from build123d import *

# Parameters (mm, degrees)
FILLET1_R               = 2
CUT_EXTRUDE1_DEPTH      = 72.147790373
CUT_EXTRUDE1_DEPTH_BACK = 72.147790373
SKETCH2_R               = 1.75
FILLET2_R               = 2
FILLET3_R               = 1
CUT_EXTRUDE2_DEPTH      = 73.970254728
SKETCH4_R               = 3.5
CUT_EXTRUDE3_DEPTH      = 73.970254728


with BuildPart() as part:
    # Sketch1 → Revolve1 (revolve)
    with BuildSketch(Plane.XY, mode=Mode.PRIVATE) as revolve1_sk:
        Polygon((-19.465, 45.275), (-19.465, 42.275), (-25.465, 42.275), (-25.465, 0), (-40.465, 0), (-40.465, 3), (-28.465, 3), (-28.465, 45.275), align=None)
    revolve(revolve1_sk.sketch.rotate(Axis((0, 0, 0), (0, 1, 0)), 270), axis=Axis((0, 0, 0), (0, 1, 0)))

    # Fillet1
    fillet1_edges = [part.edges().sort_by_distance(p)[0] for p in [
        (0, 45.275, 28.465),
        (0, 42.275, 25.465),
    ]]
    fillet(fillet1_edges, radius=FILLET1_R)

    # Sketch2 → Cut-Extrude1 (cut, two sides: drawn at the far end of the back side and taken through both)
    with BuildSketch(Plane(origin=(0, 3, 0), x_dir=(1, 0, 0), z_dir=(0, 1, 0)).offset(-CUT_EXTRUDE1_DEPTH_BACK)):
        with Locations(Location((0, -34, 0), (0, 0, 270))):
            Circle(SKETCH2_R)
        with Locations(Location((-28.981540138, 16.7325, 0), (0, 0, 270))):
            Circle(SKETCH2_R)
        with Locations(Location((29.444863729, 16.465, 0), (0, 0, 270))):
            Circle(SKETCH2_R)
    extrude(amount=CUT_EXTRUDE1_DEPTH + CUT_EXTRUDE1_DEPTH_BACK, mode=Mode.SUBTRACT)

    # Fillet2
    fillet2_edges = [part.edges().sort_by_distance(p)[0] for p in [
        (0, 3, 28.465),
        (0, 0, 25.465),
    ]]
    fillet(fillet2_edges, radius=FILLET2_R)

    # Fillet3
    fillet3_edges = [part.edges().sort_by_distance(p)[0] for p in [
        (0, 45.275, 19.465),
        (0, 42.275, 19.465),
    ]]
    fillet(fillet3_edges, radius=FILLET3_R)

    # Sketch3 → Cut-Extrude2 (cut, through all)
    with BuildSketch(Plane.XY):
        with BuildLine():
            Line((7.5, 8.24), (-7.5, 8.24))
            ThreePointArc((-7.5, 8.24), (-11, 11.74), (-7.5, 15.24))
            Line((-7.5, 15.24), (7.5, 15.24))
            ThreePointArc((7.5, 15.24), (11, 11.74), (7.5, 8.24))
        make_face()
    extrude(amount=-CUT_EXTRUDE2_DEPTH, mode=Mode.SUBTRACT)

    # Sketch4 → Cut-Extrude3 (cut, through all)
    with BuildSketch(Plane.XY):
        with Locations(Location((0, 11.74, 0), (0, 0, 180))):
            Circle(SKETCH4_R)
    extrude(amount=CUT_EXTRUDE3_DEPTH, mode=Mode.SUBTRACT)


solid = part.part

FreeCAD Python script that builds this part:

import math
import FreeCAD as App
import Part
import Sketcher
from FreeCAD import Vector


def edges_at(feature, points):
    """Names of the edges that pass closest to the given points."""
    edges = feature.Shape.Edges
    near = lambda p: min(range(len(edges)), key=lambda i: edges[i].distToShape(Part.Vertex(*p))[0])
    return sorted({f"Edge{near(p) + 1}" for p in points})


def add_polygon(sketch, points):
    """Adds a closed chain of lines whose ends are joined by coincident constraints."""
    first, n = sketch.GeometryCount, len(points)
    for a, b in zip(points, points[1:] + points[:1]):
        sketch.addGeometry(Part.LineSegment(App.Vector(*a, 0), App.Vector(*b, 0)), False)
    for i in range(n):
        sketch.addConstraint(Sketcher.Constraint("Coincident", first + i, 2, first + (i + 1) % n, 1))

doc = App.newDocument("Part")
body = doc.addObject("PartDesign::Body", "Body")

sketch1 = body.newObject("Sketcher::SketchObject", "Sketch")
sketch1.AttachmentSupport = (doc.getObject("XY_Plane"), [""])
sketch1.MapMode = "FlatFace"
add_polygon(sketch1, [(-19.5, 42.3), (-19.5, 45.3), (-28.5, 45.3), (-28.5, 3), (-40.5, 3), (-40.5, 0), (-25.5, 0), (-25.5, 42.3)])
sketch1.addConstraint(Sketcher.Constraint("Vertical", 0))
sketch1.addConstraint(Sketcher.Constraint("Horizontal", 1))
sketch1.addConstraint(Sketcher.Constraint("Vertical", 2))
sketch1.addConstraint(Sketcher.Constraint("Horizontal", 3))
sketch1.addConstraint(Sketcher.Constraint("Vertical", 4))
sketch1.addConstraint(Sketcher.Constraint("Horizontal", 5))
sketch1.addConstraint(Sketcher.Constraint("Vertical", 6))
sketch1.addConstraint(Sketcher.Constraint("Horizontal", 7))
sketch1.addConstraint(Sketcher.Constraint("PointOnObject", 4, 2, -1))
sketch1.addConstraint(Sketcher.Constraint("Equal", 0, 4))
sketch1.addConstraint(Sketcher.Constraint("DistanceX", 1, 2, 1, 1, 9.0))
sketch1.addConstraint(Sketcher.Constraint("DistanceX", 3, 2, 3, 1, 12.0))
sketch1.addConstraint(Sketcher.Constraint("DistanceX", 5, 1, 5, 2, 15.0))
sketch1.addConstraint(Sketcher.Constraint("DistanceY", 0, 1, 0, 2, 3.0))
sketch1.addConstraint(Sketcher.Constraint("DistanceY", 2, 2, 2, 1, 42.275))
sketch1.addConstraint(Sketcher.Constraint("DistanceX", 0, 2, -1, 1, 19.465))
revolution = body.newObject("PartDesign::Revolution", "Revolution")
revolution.Profile = sketch1
revolution.ReferenceAxis = (sketch1, ["V_Axis"])
revolution.Angle = 360
doc.recompute()

fillet = body.newObject("PartDesign::Fillet", "Fillet")
fillet.Base = (revolution, edges_at(revolution, [(0, 45.275, 28.465), (0, 42.275, 25.465)]))
fillet.Radius = 2

sketch2 = body.newObject("Sketcher::SketchObject", "Sketch001")
sketch2.AttachmentSupport = (doc.getObject("XZ_Plane"), [""])
sketch2.MapMode = "FlatFace"
sketch2.AttachmentOffset = App.Placement(Vector(0, 0, -3), App.Rotation())
sketch2.addGeometry(Part.Circle(Vector(0, 34, 0), Vector(0, 0, 1), 1.8), False)
sketch2.addGeometry(Part.Circle(Vector(-29, -16.7, 0), Vector(0, 0, 1), 1.8), False)
sketch2.addGeometry(Part.Circle(Vector(29.4, -16.5, 0), Vector(0, 0, 1), 1.8), False)
sketch2.addConstraint(Sketcher.Constraint("Equal", 0, 1))
sketch2.addConstraint(Sketcher.Constraint("Equal", 1, 2))
sketch2.addConstraint(Sketcher.Constraint("PointOnObject", 0, 3, -2))
sketch2.addConstraint(Sketcher.Constraint("Diameter", 0, 3.5))
sketch2.addConstraint(Sketcher.Constraint("DistanceY", -1, 1, 0, 3, 34.0))
sketch2.addConstraint(Sketcher.Constraint("DistanceY", 2, 3, -1, 1, 16.465))
sketch2.addConstraint(Sketcher.Constraint("DistanceY", 1, 3, -1, 1, 16.7325))
sketch2.addConstraint(Sketcher.Constraint("DistanceX", 1, 3, -1, 1, 28.98154))
sketch2.addConstraint(Sketcher.Constraint("DistanceX", -1, 1, 2, 3, 29.444864))
pocket1 = body.newObject("PartDesign::Pocket", "Pocket")
pocket1.Profile = sketch2
pocket1.Type = "ThroughAll"
pocket1.Midplane = True
doc.recompute()

fillet2 = body.newObject("PartDesign::Fillet", "Fillet001")
fillet2.Base = (pocket1, edges_at(pocket1, [(0, 3, 28.465), (0, 0, 25.465)]))
fillet2.Radius = 2
doc.recompute()

fillet3 = body.newObject("PartDesign::Fillet", "Fillet002")
fillet3.Base = (fillet2, edges_at(fillet2, [(0, 45.275, 19.465), (0, 42.275, 19.465)]))
fillet3.Radius = 1

sketch3 = body.newObject("Sketcher::SketchObject", "Sketch002")
sketch3.AttachmentSupport = (doc.getObject("XY_Plane"), [""])
sketch3.MapMode = "FlatFace"
sketch3.addGeometry(Part.LineSegment(Vector(-7.5, 8.2, 0), Vector(7.5, 8.2, 0)), False)
sketch3.addGeometry(Part.ArcOfCircle(Part.Circle(Vector(7.5, 11.7, 0), Vector(0, 0, 1), 3.5), math.radians(-90), math.radians(90)), False)
sketch3.addGeometry(Part.LineSegment(Vector(7.5, 15.2, 0), Vector(-7.5, 15.2, 0)), False)
sketch3.addGeometry(Part.ArcOfCircle(Part.Circle(Vector(-7.5, 11.7, 0), Vector(0, 0, 1), 3.5), math.radians(90), math.radians(270)), False)
sketch3.addConstraint(Sketcher.Constraint("Tangent", 0, 2, 1, 1))
sketch3.addConstraint(Sketcher.Constraint("Tangent", 1, 2, 2, 1))
sketch3.addConstraint(Sketcher.Constraint("Tangent", 2, 2, 3, 1))
sketch3.addConstraint(Sketcher.Constraint("Tangent", 3, 2, 0, 1))
sketch3.addConstraint(Sketcher.Constraint("Horizontal", 0))
sketch3.addConstraint(Sketcher.Constraint("Horizontal", 2))
sketch3.addConstraint(Sketcher.Constraint("Radius", 1, 3.5))
sketch3.addConstraint(Sketcher.Constraint("DistanceX", 0, 1, 0, 2, 15.0))
sketch3.addConstraint(Sketcher.Constraint("DistanceX", -1, 1, 1, 3, 7.5))
sketch3.addConstraint(Sketcher.Constraint("DistanceY", -1, 1, 1, 3, 11.74))
pocket2 = body.newObject("PartDesign::Pocket", "Pocket001")
pocket2.Profile = sketch3
pocket2.Type = "ThroughAll"

sketch4 = body.newObject("Sketcher::SketchObject", "Sketch003")
sketch4.AttachmentSupport = (doc.getObject("XY_Plane"), [""])
sketch4.MapMode = "FlatFace"
sketch4.addGeometry(Part.Circle(Vector(0, 11.7, 0), Vector(0, 0, 1), 3.5), False)
sketch4.addConstraint(Sketcher.Constraint("PointOnObject", 0, 3, -2))
sketch4.addConstraint(Sketcher.Constraint("Diameter", 0, 7.0))
sketch4.addConstraint(Sketcher.Constraint("DistanceY", -1, 1, 0, 3, 11.74))
pocket3 = body.newObject("PartDesign::Pocket", "Pocket002")
pocket3.Profile = sketch4
pocket3.Type = "ThroughAll"
pocket3.Reversed = True

doc.recompute()
